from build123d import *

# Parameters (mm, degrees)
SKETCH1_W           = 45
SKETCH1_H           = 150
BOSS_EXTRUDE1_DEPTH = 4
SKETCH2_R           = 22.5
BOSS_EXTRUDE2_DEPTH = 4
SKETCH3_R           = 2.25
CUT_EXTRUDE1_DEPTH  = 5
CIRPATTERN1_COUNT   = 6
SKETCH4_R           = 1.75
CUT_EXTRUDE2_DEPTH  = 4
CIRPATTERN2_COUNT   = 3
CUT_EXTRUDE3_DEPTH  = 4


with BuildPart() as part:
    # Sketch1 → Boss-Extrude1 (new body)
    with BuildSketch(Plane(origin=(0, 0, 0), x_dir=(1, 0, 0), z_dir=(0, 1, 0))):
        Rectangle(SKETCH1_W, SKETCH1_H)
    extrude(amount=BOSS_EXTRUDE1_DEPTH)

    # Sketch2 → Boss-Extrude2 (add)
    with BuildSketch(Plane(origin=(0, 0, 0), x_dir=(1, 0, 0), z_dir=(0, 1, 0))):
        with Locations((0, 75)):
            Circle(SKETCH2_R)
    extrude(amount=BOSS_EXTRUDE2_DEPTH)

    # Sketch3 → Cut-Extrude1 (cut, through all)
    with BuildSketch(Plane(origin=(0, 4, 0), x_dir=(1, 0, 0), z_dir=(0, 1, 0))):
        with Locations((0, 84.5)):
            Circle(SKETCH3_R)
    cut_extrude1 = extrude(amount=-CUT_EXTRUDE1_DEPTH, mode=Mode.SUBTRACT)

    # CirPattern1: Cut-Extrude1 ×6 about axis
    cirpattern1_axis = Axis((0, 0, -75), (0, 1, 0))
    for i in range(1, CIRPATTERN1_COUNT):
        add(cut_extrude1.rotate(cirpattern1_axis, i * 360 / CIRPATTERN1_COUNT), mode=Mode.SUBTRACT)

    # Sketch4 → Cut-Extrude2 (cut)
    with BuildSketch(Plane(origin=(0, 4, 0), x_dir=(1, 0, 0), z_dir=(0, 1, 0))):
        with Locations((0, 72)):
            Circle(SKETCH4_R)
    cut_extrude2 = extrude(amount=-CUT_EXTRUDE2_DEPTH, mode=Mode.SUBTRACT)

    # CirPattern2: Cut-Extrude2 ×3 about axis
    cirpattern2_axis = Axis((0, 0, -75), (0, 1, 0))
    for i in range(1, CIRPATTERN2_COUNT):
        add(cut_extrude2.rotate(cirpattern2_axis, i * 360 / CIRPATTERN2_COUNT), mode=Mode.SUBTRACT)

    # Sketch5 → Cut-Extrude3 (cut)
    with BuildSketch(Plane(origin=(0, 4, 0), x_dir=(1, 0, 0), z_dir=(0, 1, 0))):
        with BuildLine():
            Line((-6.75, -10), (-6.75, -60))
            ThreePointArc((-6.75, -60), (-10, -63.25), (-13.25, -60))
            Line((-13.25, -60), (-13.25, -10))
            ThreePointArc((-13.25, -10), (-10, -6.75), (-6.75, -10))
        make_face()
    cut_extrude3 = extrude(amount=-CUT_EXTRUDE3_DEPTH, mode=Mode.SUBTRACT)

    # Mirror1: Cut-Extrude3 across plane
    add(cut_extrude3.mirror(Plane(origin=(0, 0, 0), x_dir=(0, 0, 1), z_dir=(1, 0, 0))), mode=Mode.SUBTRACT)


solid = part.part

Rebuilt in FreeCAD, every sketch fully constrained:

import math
import FreeCAD as App
import Part
import Sketcher

V = App.Vector

doc = App.newDocument("Part")
params = doc.addObject("Spreadsheet::Sheet", "Params")
for row, (alias, value) in enumerate([
    ("sketch1_width", "45 mm"),
    ("sketch1_height", "150 mm"),
    ("pad1_length", "4 mm"),
    ("sketch2_diameter", "45 mm"),
    ("pad2_length", "4 mm"),
    ("sketch3_diameter", "4.5 mm"),
    ("sketch4_diameter", "3.5 mm"),
    ("pocket2_length", "4 mm"),
    ("sketch5_height", "50 mm"),
    ("sketch5_radius", "3.25 mm"),
    ("pocket3_length", "4 mm"),
], start=1):
    params.set(f"A{row}", alias)
    params.set(f"B{row}", "=" + value)
    params.setAlias(f"B{row}", alias)

body = doc.addObject("PartDesign::Body", "Body")

# Sketch on XZ plane
sketch1 = doc.addObject("Sketcher::SketchObject", "Sketch")
body.addObject(sketch1)
sketch1.AttachmentSupport = (doc.XZ_Plane, [""])
sketch1.MapMode = "FlatFace"
sketch1.addGeometry([
    Part.LineSegment(V(-22, -75, 0), V(-22, 75, 0)),
    Part.LineSegment(V(-22, 75, 0), V(22, 75, 0)),
    Part.LineSegment(V(22, 75, 0), V(22, -75, 0)),
    Part.LineSegment(V(22, -75, 0), V(-22, -75, 0)),
], False)
sketch1.addConstraint([
    Sketcher.Constraint("Coincident", 0, 2, 1, 1),
    Sketcher.Constraint("Coincident", 1, 2, 2, 1),
    Sketcher.Constraint("Coincident", 2, 2, 3, 1),
    Sketcher.Constraint("Coincident", 3, 2, 0, 1),
    Sketcher.Constraint("Vertical", 0),
    Sketcher.Constraint("Horizontal", 1),
    Sketcher.Constraint("Vertical", 2),
    Sketcher.Constraint("Horizontal", 3),
    Sketcher.Constraint("Symmetric", 0, 2, 2, 2, -1, 1),
    Sketcher.Constraint("DistanceX", 1, 1, 1, 2, 45.0),
    Sketcher.Constraint("DistanceY", 0, 1, 0, 2, 150.0),
])
sketch1.setExpression("Constraints[9]", "Params.sketch1_width")
sketch1.setExpression("Constraints[10]", "Params.sketch1_height")
pad1 = doc.addObject("PartDesign::Pad", "Pad")
body.addObject(pad1)
pad1.Profile = sketch1
pad1.setExpression("Length", "Params.pad1_length")
pad1.Reversed = True

# Sketch on XZ plane
sketch2 = doc.addObject("Sketcher::SketchObject", "Sketch001")
body.addObject(sketch2)
sketch2.AttachmentSupport = (doc.XZ_Plane, [""])
sketch2.MapMode = "FlatFace"
sketch2.addGeometry(Part.Circle(V(0, -75, 0), V(0, 0, 1), 22), False)
sketch2.addConstraint([
    Sketcher.Constraint("PointOnObject", 0, 3, -2),
    Sketcher.Constraint("Diameter", 0, 45.0),
    Sketcher.Constraint("DistanceY", 0, 3, -1, 1, 75.0),
])
sketch2.setExpression("Constraints[1]", "Params.sketch2_diameter")
pad2 = doc.addObject("PartDesign::Pad", "Pad001")
body.addObject(pad2)
pad2.Profile = sketch2
pad2.setExpression("Length", "Params.pad2_length")
pad2.Reversed = True

# Sketch on XZ plane
sketch3 = doc.addObject("Sketcher::SketchObject", "Sketch002")
body.addObject(sketch3)
sketch3.AttachmentSupport = (doc.XZ_Plane, [""])
sketch3.MapMode = "FlatFace"
sketch3.AttachmentOffset = App.Placement(V(0, 0, -4), App.Rotation())
sketch3.addGeometry(Part.Circle(V(0, -84.5, 0), V(0, 0, 1), 2.2), False)
sketch3.addConstraint([
    Sketcher.Constraint("PointOnObject", 0, 3, -2),
    Sketcher.Constraint("Diameter", 0, 4.5),
    Sketcher.Constraint("DistanceY", 0, 3, -1, 1, 84.5),
])
sketch3.setExpression("Constraints[1]", "Params.sketch3_diameter")
pocket1 = doc.addObject("PartDesign::Pocket", "Pocket")
body.addObject(pocket1)
pocket1.Profile = sketch3
pocket1.Type = "ThroughAll"
pocket1.Reversed = True
doc.recompute()

datumline = doc.addObject("PartDesign::Line", "DatumLine")
body.addObject(datumline)
datumline.Placement = App.Placement(V(0, 0, -75), App.Rotation(V(0, 0, 1), V(0, 1, 0)))
polarpattern = doc.addObject("PartDesign::PolarPattern", "PolarPattern")
body.addObject(polarpattern)
polarpattern.Originals = [pocket1]
polarpattern.Axis = (datumline, [""])
polarpattern.Angle = 360
polarpattern.Occurrences = 6
body.Tip = polarpattern

# Sketch on XZ plane
sketch4 = doc.addObject("Sketcher::SketchObject", "Sketch003")
body.addObject(sketch4)
sketch4.AttachmentSupport = (doc.XZ_Plane, [""])
sketch4.MapMode = "FlatFace"
sketch4.AttachmentOffset = App.Placement(V(0, 0, -4), App.Rotation())
sketch4.addGeometry(Part.Circle(V(0, -72, 0), V(0, 0, 1), 1.8), False)
sketch4.addConstraint([
    Sketcher.Constraint("PointOnObject", 0, 3, -2),
    Sketcher.Constraint("Diameter", 0, 3.5),
    Sketcher.Constraint("DistanceY", 0, 3, -1, 1, 72.0),
])
sketch4.setExpression("Constraints[1]", "Params.sketch4_diameter")
pocket2 = doc.addObject("PartDesign::Pocket", "Pocket001")
body.addObject(pocket2)
pocket2.Profile = sketch4
pocket2.setExpression("Length", "Params.pocket2_length")
pocket2.Reversed = True
doc.recompute()

datumline2 = doc.addObject("PartDesign::Line", "DatumLine001")
body.addObject(datumline2)
datumline2.Placement = App.Placement(V(0, 0, -75), App.Rotation(V(0, 0, 1), V(0, 1, 0)))
polarpattern2 = doc.addObject("PartDesign::PolarPattern", "PolarPattern001")
body.addObject(polarpattern2)
polarpattern2.Originals = [pocket2]
polarpattern2.Axis = (datumline2, [""])
polarpattern2.Angle = 360
polarpattern2.Occurrences = 3
body.Tip = polarpattern2

# Sketch on XZ plane
sketch5 = doc.addObject("Sketcher::SketchObject", "Sketch004")
body.addObject(sketch5)
sketch5.AttachmentSupport = (doc.XZ_Plane, [""])
sketch5.MapMode = "FlatFace"
sketch5.AttachmentOffset = App.Placement(V(0, 0, -4), App.Rotation())
sketch5.addGeometry([
    Part.LineSegment(V(-6.8, 60, 0), V(-6.8, 10, 0)),
    Part.ArcOfCircle(Part.Circle(V(-10, 10, 0), V(0, 0, 1), 3.2), math.radians(180), math.radians(360)),
    Part.LineSegment(V(-13.2, 10, 0), V(-13.2, 60, 0)),
    Part.ArcOfCircle(Part.Circle(V(-10, 60, 0), V(0, 0, 1), 3.2), math.radians(0), math.radians(180)),
], False)
sketch5.addConstraint([
    Sketcher.Constraint("Tangent", 0, 2, 1, 2),
    Sketcher.Constraint("Tangent", 1, 1, 2, 1),
    Sketcher.Constraint("Tangent", 2, 2, 3, 2),
    Sketcher.Constraint("Tangent", 3, 1, 0, 1),
    Sketcher.Constraint("Vertical", 0),
    Sketcher.Constraint("Vertical", 2),
    Sketcher.Constraint("DistanceY", 0, 2, 0, 1, 50.0),
    Sketcher.Constraint("Radius", 1, 3.25),
    Sketcher.Constraint("DistanceX", 1, 3, -1, 1, 10.0),
    Sketcher.Constraint("DistanceY", -1, 1, 1, 3, 10.0),
])
sketch5.setExpression("Constraints[6]", "Params.sketch5_height")
sketch5.setExpression("Constraints[7]", "Params.sketch5_radius")
pocket3 = doc.addObject("PartDesign::Pocket", "Pocket002")
body.addObject(pocket3)
pocket3.Profile = sketch5
pocket3.setExpression("Length", "Params.pocket3_length")
pocket3.Reversed = True
doc.recompute()

mirrored = doc.addObject("PartDesign::Mirrored", "Mirrored")
body.addObject(mirrored)
mirrored.Originals = [pocket3]
mirrored.MirrorPlane = (doc.YZ_Plane, [""])
body.Tip = mirrored

doc.recompute()
